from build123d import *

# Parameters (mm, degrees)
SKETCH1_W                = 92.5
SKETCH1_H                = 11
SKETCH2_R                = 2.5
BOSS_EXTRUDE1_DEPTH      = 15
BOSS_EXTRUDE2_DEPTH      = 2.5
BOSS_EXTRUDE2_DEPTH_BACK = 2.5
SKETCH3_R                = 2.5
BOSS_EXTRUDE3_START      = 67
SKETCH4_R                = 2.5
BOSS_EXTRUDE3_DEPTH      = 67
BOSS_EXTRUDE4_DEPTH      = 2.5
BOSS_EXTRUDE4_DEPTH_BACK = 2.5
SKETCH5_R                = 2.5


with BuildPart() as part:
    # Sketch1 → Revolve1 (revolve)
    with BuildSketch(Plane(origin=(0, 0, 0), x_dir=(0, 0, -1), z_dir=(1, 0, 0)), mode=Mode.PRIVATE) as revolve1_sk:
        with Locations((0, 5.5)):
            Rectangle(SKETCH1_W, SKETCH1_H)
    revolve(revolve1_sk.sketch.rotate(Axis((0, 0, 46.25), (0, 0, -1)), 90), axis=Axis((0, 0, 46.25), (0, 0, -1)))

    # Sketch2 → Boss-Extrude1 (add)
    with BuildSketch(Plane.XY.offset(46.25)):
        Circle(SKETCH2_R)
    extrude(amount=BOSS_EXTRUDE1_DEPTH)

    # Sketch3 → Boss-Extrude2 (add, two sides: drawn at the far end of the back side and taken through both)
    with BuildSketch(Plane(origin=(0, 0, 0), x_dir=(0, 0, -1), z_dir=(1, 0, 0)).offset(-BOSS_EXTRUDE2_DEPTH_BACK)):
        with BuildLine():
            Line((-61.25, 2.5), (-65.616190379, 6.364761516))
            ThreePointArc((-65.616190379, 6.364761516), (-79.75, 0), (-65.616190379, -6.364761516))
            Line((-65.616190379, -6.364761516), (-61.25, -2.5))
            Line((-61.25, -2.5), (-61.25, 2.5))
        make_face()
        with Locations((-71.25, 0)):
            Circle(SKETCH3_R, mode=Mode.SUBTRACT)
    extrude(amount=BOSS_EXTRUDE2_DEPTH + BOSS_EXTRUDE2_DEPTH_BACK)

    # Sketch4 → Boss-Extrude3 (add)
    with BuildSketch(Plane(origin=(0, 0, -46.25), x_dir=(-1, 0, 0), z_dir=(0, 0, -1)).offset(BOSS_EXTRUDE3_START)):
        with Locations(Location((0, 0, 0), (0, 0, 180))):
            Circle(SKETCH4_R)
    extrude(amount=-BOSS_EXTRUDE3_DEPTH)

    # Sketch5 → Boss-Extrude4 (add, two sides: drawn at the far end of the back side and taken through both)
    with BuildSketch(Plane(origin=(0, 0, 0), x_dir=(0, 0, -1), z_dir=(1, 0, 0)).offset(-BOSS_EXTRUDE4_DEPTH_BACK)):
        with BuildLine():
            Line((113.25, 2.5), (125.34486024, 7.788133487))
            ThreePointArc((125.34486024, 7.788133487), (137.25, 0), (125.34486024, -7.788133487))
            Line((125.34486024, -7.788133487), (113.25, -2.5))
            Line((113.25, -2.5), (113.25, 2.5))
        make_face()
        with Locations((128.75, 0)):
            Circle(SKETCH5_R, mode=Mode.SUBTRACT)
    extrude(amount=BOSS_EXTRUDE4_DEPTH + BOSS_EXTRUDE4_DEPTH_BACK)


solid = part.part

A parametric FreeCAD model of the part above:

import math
import FreeCAD as App
import Part
import Sketcher


def add_polygon(sketch, points):
    """Adds a closed chain of lines whose ends are joined by coincident constraints."""
    first, n = sketch.GeometryCount, len(points)
    for a, b in zip(points, points[1:] + points[:1]):
        sketch.addGeometry(Part.LineSegment(App.Vector(*a, 0), App.Vector(*b, 0)), False)
    for i in range(n):
        sketch.addConstraint(Sketcher.Constraint("Coincident", first + i, 2, first + (i + 1) % n, 1))

doc = App.newDocument("Part")
params = doc.addObject("Spreadsheet::Sheet", "Params")
for row, (alias, value) in enumerate([
    ("sketch1_width", "11 mm"),
    ("sketch1_height", "92.5 mm"),
    ("revolution_angle", "360 deg"),
    ("sketch2_diameter", "5 mm"),
    ("pad1_length", "15 mm"),
    ("sketch3_diameter", "5 mm"),
    ("sketch3_radius", "8.5 mm"),
    ("sketch3_width", "5 mm"),
    ("pad2_length", "2.5 mm"),
    ("pad2_length2", "2.5 mm"),
    ("sketch4_diameter", "5 mm"),
    ("pad3_length", "67 mm"),
    ("sketch5_diameter", "5 mm"),
    ("sketch5_radius", "8.5 mm"),
    ("sketch5_width", "5 mm"),
    ("pad4_length", "2.5 mm"),
    ("pad4_length2", "2.5 mm"),
], start=1):
    params.set(f"A{row}", alias)
    params.set(f"B{row}", "=" + value)
    params.setAlias(f"B{row}", alias)

body = doc.addObject("PartDesign::Body", "Body")

# Sketch on YZ plane
sketch1 = doc.addObject("Sketcher::SketchObject", "Sketch")
body.addObject(sketch1)
sketch1.AttachmentSupport = (doc.YZ_Plane, [""])
sketch1.MapMode = "FlatFace"
add_polygon(sketch1, [(11, 46), (0, 46), (0, -46), (11, -46)])  # lines 0-3
sketch1.addConstraint([
    Sketcher.Constraint("Horizontal", 0),
    Sketcher.Constraint("Vertical", 1),
    Sketcher.Constraint("Horizontal", 2),
    Sketcher.Constraint("Vertical", 3),
    Sketcher.Constraint("Symmetric", 0, 2, 1, 2, -1, 1),
    Sketcher.Constraint("DistanceX", 0, 2, 0, 1, 11.0),
    Sketcher.Constraint("DistanceY", 1, 2, 1, 1, 92.5),
])
sketch1.setExpression("Constraints[9]", "Params.sketch1_width")
sketch1.setExpression("Constraints[10]", "Params.sketch1_height")
revolution = doc.addObject("PartDesign::Revolution", "Revolution")
body.addObject(revolution)
revolution.Profile = sketch1
revolution.ReferenceAxis = (sketch1, ["V_Axis"])
revolution.setExpression("Angle", "Params.revolution_angle")

# Sketch on XY plane
sketch2 = doc.addObject("Sketcher::SketchObject", "Sketch001")
body.addObject(sketch2)
sketch2.AttachmentSupport = (doc.XY_Plane, [""])
sketch2.MapMode = "FlatFace"
sketch2.AttachmentOffset = App.Placement(App.Vector(0, 0, 46.25), App.Rotation())
sketch2.addGeometry(Part.Circle(App.Vector(0, 0, 0), App.Vector(0, 0, 1), 2.5), False)
sketch2.addConstraint([
    Sketcher.Constraint("Coincident", 0, 3, -1, 1),
    Sketcher.Constraint("Diameter", 0, 5.0),
])
sketch2.setExpression("Constraints[1]", "Params.sketch2_diameter")
pad1 = doc.addObject("PartDesign::Pad", "Pad")
body.addObject(pad1)
pad1.Profile = sketch2
pad1.setExpression("Length", "Params.pad1_length")

# Sketch on YZ plane
sketch3 = doc.addObject("Sketcher::SketchObject", "Sketch002")
body.addObject(sketch3)
sketch3.AttachmentSupport = (doc.YZ_Plane, [""])
sketch3.MapMode = "FlatFace"
sketch3.addGeometry([
    Part.LineSegment(App.Vector(2.5, 61.2, 0), App.Vector(6.4, 65.6, 0)),  # 0
    Part.ArcOfCircle(Part.Circle(App.Vector(0, 71.2, 0), App.Vector(0, 0, 1), 8.5), math.radians(-42), math.radians(222)),  # 1
    Part.LineSegment(App.Vector(-6.4, 65.6, 0), App.Vector(-2.5, 61.2, 0)),  # 2
    Part.LineSegment(App.Vector(-2.5, 61.2, 0), App.Vector(2.5, 61.2, 0)),  # 3
    Part.Circle(App.Vector(0, 71.2, 0), App.Vector(0, 0, 1), 2.5),  # 4
], False)
sketch3.addConstraint([
    Sketcher.Constraint("Tangent", 0, 2, 1, 1),
    Sketcher.Constraint("Tangent", 1, 2, 2, 1),
    Sketcher.Constraint("Coincident", 2, 2, 3, 1),
    Sketcher.Constraint("Coincident", 3, 2, 0, 1),
    Sketcher.Constraint("Horizontal", 3),
    Sketcher.Constraint("Coincident", 4, 3, 1, 3),
    Sketcher.Constraint("Symmetric", 0, 2, 1, 2, -2),
    Sketcher.Constraint("Diameter", 4, 5.0),
    Sketcher.Constraint("Radius", 1, 8.5),
    Sketcher.Constraint("DistanceX", 3, 1, 3, 2, 5.0),
    Sketcher.Constraint("DistanceY", 2, 2, 1, 3, 10.0),
    Sketcher.Constraint("DistanceY", -1, 1, 1, 3, 71.25),
])
sketch3.setExpression("Constraints[7]", "Params.sketch3_diameter")
sketch3.setExpression("Constraints[8]", "Params.sketch3_radius")
sketch3.setExpression("Constraints[9]", "Params.sketch3_width")
pad2 = doc.addObject("PartDesign::Pad", "Pad001")
body.addObject(pad2)
pad2.Profile = sketch3
pad2.Type = "TwoLengths"
pad2.setExpression("Length", "Params.pad2_length")
pad2.setExpression("Length2", "Params.pad2_length2")

# Sketch on XY plane
sketch4 = doc.addObject("Sketcher::SketchObject", "Sketch003")
body.addObject(sketch4)
sketch4.AttachmentSupport = (doc.XY_Plane, [""])
sketch4.MapMode = "FlatFace"
sketch4.AttachmentOffset = App.Placement(App.Vector(0, 0, -113.25), App.Rotation())
sketch4.addGeometry(Part.Circle(App.Vector(0, 0, 0), App.Vector(0, 0, 1), 2.5), False)
sketch4.addConstraint([
    Sketcher.Constraint("Coincident", 0, 3, -1, 1),
    Sketcher.Constraint("Diameter", 0, 5.0),
])
sketch4.setExpression("Constraints[1]", "Params.sketch4_diameter")
pad3 = doc.addObject("PartDesign::Pad", "Pad002")
body.addObject(pad3)
pad3.Profile = sketch4
pad3.setExpression("Length", "Params.pad3_length")

# Sketch on YZ plane
sketch5 = doc.addObject("Sketcher::SketchObject", "Sketch004")
body.addObject(sketch5)
sketch5.AttachmentSupport = (doc.YZ_Plane, [""])
sketch5.MapMode = "FlatFace"
sketch5.addGeometry([
    Part.LineSegment(App.Vector(7.8, -125.3, 0), App.Vector(2.5, -113.2, 0)),  # 0
    Part.LineSegment(App.Vector(2.5, -113.2, 0), App.Vector(-2.5, -113.2, 0)),  # 1
    Part.LineSegment(App.Vector(-2.5, -113.2, 0), App.Vector(-7.8, -125.3, 0)),  # 2
    Part.ArcOfCircle(Part.Circle(App.Vector(0, -128.8, 0), App.Vector(0, 0, 1), 8.5), math.radians(156), math.radians(384)),  # 3
    Part.Circle(App.Vector(0, -128.8, 0), App.Vector(0, 0, 1), 2.5),  # 4
], False)
sketch5.addConstraint([
    Sketcher.Constraint("Coincident", 0, 2, 1, 1),
    Sketcher.Constraint("Coincident", 1, 2, 2, 1),
    Sketcher.Constraint("Tangent", 2, 2, 3, 1),
    Sketcher.Constraint("Tangent", 3, 2, 0, 1),
    Sketcher.Constraint("Horizontal", 1),
    Sketcher.Constraint("Coincident", 4, 3, 3, 3),
    Sketcher.Constraint("Symmetric", 2, 2, 3, 2, -2),
    Sketcher.Constraint("Diameter", 4, 5.0),
    Sketcher.Constraint("Radius", 3, 8.5),
    Sketcher.Constraint("DistanceX", 1, 2, 1, 1, 5.0),
    Sketcher.Constraint("DistanceY", 3, 3, 0, 2, 15.5),
    Sketcher.Constraint("DistanceY", 3, 3, -1, 1, 128.75),
])
sketch5.setExpression("Constraints[7]", "Params.sketch5_diameter")
sketch5.setExpression("Constraints[8]", "Params.sketch5_radius")
sketch5.setExpression("Constraints[9]", "Params.sketch5_width")
pad4 = doc.addObject("PartDesign::Pad", "Pad003")
body.addObject(pad4)
pad4.Profile = sketch5
pad4.Type = "TwoLengths"
pad4.setExpression("Length", "Params.pad4_length")
pad4.setExpression("Length2", "Params.pad4_length2")

doc.recompute()
